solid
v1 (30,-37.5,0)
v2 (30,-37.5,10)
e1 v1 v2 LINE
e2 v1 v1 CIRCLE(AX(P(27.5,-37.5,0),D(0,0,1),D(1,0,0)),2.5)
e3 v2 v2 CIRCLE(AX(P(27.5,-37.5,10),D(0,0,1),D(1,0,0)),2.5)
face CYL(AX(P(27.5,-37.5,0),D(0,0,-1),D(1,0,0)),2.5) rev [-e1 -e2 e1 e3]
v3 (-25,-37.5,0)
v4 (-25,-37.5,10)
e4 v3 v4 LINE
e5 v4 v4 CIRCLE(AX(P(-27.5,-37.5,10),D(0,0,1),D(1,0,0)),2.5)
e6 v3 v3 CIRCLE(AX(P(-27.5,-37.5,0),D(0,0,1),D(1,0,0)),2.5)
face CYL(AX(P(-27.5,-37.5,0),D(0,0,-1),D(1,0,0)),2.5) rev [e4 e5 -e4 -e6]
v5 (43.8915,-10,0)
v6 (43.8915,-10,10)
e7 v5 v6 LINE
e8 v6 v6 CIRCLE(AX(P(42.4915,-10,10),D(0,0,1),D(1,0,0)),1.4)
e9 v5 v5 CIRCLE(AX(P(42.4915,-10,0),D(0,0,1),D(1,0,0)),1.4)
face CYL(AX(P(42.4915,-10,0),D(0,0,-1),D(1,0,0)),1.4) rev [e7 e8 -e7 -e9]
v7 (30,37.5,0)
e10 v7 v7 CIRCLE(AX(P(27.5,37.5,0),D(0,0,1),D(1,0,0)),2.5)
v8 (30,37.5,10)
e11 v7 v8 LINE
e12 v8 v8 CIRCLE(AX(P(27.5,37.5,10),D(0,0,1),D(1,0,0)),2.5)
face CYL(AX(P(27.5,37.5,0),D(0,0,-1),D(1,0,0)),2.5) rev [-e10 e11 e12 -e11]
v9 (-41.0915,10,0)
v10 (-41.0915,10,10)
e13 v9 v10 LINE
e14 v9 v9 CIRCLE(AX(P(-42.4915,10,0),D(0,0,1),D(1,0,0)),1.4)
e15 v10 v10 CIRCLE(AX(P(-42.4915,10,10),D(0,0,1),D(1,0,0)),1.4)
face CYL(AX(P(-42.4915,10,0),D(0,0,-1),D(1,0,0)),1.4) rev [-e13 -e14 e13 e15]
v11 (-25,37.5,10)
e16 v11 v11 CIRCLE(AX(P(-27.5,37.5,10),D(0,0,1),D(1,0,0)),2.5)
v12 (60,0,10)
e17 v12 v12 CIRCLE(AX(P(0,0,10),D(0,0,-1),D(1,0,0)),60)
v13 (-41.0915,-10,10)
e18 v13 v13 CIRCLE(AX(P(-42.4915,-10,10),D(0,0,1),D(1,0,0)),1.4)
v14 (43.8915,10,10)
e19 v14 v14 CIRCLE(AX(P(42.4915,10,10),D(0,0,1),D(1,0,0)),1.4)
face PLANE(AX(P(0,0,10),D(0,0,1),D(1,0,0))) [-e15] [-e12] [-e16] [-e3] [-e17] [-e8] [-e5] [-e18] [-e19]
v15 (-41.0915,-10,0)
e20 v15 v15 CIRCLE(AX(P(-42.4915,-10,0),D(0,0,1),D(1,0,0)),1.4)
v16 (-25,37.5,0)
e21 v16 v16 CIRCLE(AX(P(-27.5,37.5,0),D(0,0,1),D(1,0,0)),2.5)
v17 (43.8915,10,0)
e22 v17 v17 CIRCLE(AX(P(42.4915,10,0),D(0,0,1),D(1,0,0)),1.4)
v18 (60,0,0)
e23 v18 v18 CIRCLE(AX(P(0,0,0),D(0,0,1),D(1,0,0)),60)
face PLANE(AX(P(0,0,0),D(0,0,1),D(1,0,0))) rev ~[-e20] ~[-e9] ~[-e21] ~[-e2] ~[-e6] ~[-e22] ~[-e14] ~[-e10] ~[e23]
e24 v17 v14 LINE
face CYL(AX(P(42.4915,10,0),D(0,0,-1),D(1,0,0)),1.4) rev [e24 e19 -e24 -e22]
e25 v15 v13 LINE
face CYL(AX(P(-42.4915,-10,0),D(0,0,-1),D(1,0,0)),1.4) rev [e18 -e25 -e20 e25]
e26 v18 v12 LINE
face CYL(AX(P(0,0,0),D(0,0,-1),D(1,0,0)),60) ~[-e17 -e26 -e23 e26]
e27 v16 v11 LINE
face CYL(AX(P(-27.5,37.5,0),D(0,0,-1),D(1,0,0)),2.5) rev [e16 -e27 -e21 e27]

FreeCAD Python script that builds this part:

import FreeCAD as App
import Part
import Sketcher
from FreeCAD import Vector

doc = App.newDocument("Part")
params = doc.addObject("Spreadsheet::Sheet", "Params")
for row, (alias, value) in enumerate([
    ("sketch1_diameter", "120 mm"),
    ("sketch1_diameter2", "5 mm"),
    ("sketch1_diameter3", "2.8 mm"),
    ("pad1_length", "10 mm"),
], start=1):
    params.set(f"A{row}", alias)
    params.set(f"B{row}", "=" + value)
    params.setAlias(f"B{row}", alias)

body = doc.addObject("PartDesign::Body", "Body")

sketch1 = doc.addObject("Sketcher::SketchObject", "Sketch")
body.addObject(sketch1)
sketch1.AttachmentSupport = (doc.XY_Plane, [""])
sketch1.MapMode = "FlatFace"
sketch1.addGeometry(Part.Circle(Vector(0, 0, 0), Vector(0, 0, 1), 60), False)
sketch1.addGeometry(Part.Circle(Vector(-42.4915, 10, 0), Vector(0, 0, 1), 1.4), False)
sketch1.addGeometry(Part.Circle(Vector(-27.5, 37.5, 0), Vector(0, 0, 1), 2.5), False)
sketch1.addGeometry(Part.Circle(Vector(42.4915, 10, 0), Vector(0, 0, 1), 1.4), False)
sketch1.addGeometry(Part.Circle(Vector(27.5, 37.5, 0), Vector(0, 0, 1), 2.5), False)
sketch1.addGeometry(Part.Circle(Vector(27.5, -37.5, 0), Vector(0, 0, 1), 2.5), False)
sketch1.addGeometry(Part.Circle(Vector(42.4915, -10, 0), Vector(0, 0, 1), 1.4), False)
sketch1.addGeometry(Part.Circle(Vector(-27.5, -37.5, 0), Vector(0, 0, 1), 2.5), False)
sketch1.addGeometry(Part.Circle(Vector(-42.4915, -10, 0), Vector(0, 0, 1), 1.4), False)
sketch1.addConstraint(Sketcher.Constraint("Coincident", 0, 3, -1, 1))
sketch1.addConstraint(Sketcher.Constraint("Equal", 1, 3))
sketch1.addConstraint(Sketcher.Constraint("Equal", 2, 4))
sketch1.addConstraint(Sketcher.Constraint("Equal", 4, 5))
sketch1.addConstraint(Sketcher.Constraint("Equal", 3, 6))
sketch1.addConstraint(Sketcher.Constraint("Equal", 5, 7))
sketch1.addConstraint(Sketcher.Constraint("Equal", 6, 8))
sketch1.addConstraint(Sketcher.Constraint("Symmetric", 2, 3, 5, 3, -1, 1))
sketch1.addConstraint(Sketcher.Constraint("Symmetric", 1, 3, 6, 3, -1, 1))
sketch1.addConstraint(Sketcher.Constraint("Symmetric", 4, 3, 7, 3, -1, 1))
sketch1.addConstraint(Sketcher.Constraint("Symmetric", 3, 3, 8, 3, -1, 1))
sketch1.addConstraint(Sketcher.Constraint("Symmetric", 1, 3, 3, 3, -2))
sketch1.addConstraint(Sketcher.Constraint("Symmetric", 2, 3, 4, 3, -2))
sketch1.addConstraint(Sketcher.Constraint("Diameter", 0, 120.0))
sketch1.addConstraint(Sketcher.Constraint("Diameter", 2, 5.0))
sketch1.addConstraint(Sketcher.Constraint("Diameter", 1, 2.8))
sketch1.addConstraint(Sketcher.Constraint("DistanceX", 2, 3, 4, 3, 55.0))
sketch1.addConstraint(Sketcher.Constraint("DistanceY", 5, 3, 4, 3, 75.0))
sketch1.addConstraint(Sketcher.Constraint("DistanceY", 6, 3, 3, 3, 20.0))
sketch1.addConstraint(Sketcher.Constraint("DistanceX", 1, 3, 3, 3, 84.983))
sketch1.setExpression("Constraints[13]", "Params.sketch1_diameter")
sketch1.setExpression("Constraints[14]", "Params.sketch1_diameter2")
sketch1.setExpression("Constraints[15]", "Params.sketch1_diameter3")
pad1 = doc.addObject("PartDesign::Pad", "Pad")
body.addObject(pad1)
pad1.Profile = sketch1
pad1.setExpression("Length", "Params.pad1_length")

doc.recompute()
